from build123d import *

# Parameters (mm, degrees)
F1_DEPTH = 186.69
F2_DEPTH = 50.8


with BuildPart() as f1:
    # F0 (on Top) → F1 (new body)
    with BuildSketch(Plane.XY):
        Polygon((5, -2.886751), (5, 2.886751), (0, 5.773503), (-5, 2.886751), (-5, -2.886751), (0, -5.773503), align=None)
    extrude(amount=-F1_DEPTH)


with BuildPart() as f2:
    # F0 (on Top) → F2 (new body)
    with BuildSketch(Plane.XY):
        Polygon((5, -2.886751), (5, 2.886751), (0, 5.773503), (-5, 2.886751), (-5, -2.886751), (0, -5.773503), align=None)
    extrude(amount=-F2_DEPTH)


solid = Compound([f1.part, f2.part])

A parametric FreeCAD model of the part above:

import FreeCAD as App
import Part
import Sketcher

V = App.Vector
Q = App.Units.Quantity


def add_polygon(sketch, points):
    """Adds a closed chain of lines whose ends are joined by coincident constraints."""
    first, n = sketch.GeometryCount, len(points)
    for a, b in zip(points, points[1:] + points[:1]):
        sketch.addGeometry(Part.LineSegment(App.Vector(*a, 0), App.Vector(*b, 0)), False)
    for i in range(n):
        sketch.addConstraint(Sketcher.Constraint("Coincident", first + i, 2, first + (i + 1) % n, 1))

doc = App.newDocument("Part")
body = doc.addObject("PartDesign::Body", "Body")

# Sketch on XY plane
sketch1 = body.newObject("Sketcher::SketchObject", "Sketch")
sketch1.AttachmentSupport = (doc.getObject("XY_Plane"), [""])
sketch1.MapMode = "FlatFace"
add_polygon(sketch1, [(5, -3), (5, 3), (0, 6), (-5, 3), (-5, -3), (0, -6)])  # lines 0-5
sketch1.addConstraint(Sketcher.Constraint("Vertical", 0))
sketch1.addConstraint(Sketcher.Constraint("Vertical", 3))
sketch1.addConstraint(Sketcher.Constraint("Symmetric", 0, 2, 3, 2, -1, 1))
sketch1.addConstraint(Sketcher.Constraint("Symmetric", 1, 2, 4, 2, -1, 1))
sketch1.addConstraint(Sketcher.Constraint("PointOnObject", 1, 2, -2))
sketch1.addConstraint(Sketcher.Constraint("Parallel", 2, 5))
sketch1.addConstraint(Sketcher.Constraint("Horizontal", 0, 2, 2, 2))
sketch1.addConstraint(Sketcher.Constraint("Angle", 1, Q("149.999994 deg")))
sketch1.addConstraint(Sketcher.Constraint("DistanceY", 0, 1, 0, 2, Q("5.773502 mm")))
sketch1.addConstraint(Sketcher.Constraint("DistanceX", -1, 1, 0, 2, Q("5 mm")))
pad1 = body.newObject("PartDesign::Pad", "Pad")
pad1.Profile = sketch1
pad1.Length = Q("7.35 in")
pad1.Reversed = True
body2 = doc.addObject("PartDesign::Body", "Body001")

# Sketch on XY plane
sketch2 = body2.newObject("Sketcher::SketchObject", "Sketch001")
sketch2.AttachmentSupport = (doc.getObject("XY_Plane001"), [""])
sketch2.MapMode = "FlatFace"
add_polygon(sketch2, [(5, -3), (5, 3), (0, 6), (-5, 3), (-5, -3), (0, -6)])  # lines 0-5
sketch2.addConstraint(Sketcher.Constraint("Vertical", 0))
sketch2.addConstraint(Sketcher.Constraint("Vertical", 3))
sketch2.addConstraint(Sketcher.Constraint("Symmetric", 0, 2, 3, 2, -1, 1))
sketch2.addConstraint(Sketcher.Constraint("Symmetric", 1, 2, 4, 2, -1, 1))
sketch2.addConstraint(Sketcher.Constraint("PointOnObject", 1, 2, -2))
sketch2.addConstraint(Sketcher.Constraint("Parallel", 2, 5))
sketch2.addConstraint(Sketcher.Constraint("Horizontal", 0, 2, 2, 2))
sketch2.addConstraint(Sketcher.Constraint("Angle", 1, Q("149.999994 deg")))
sketch2.addConstraint(Sketcher.Constraint("DistanceY", 0, 1, 0, 2, Q("5.773502 mm")))
sketch2.addConstraint(Sketcher.Constraint("DistanceX", -1, 1, 0, 2, Q("5 mm")))
pad2 = body2.newObject("PartDesign::Pad", "Pad001")
pad2.Profile = sketch2
pad2.Length = Q("2 in")
pad2.Reversed = True

doc.recompute()
